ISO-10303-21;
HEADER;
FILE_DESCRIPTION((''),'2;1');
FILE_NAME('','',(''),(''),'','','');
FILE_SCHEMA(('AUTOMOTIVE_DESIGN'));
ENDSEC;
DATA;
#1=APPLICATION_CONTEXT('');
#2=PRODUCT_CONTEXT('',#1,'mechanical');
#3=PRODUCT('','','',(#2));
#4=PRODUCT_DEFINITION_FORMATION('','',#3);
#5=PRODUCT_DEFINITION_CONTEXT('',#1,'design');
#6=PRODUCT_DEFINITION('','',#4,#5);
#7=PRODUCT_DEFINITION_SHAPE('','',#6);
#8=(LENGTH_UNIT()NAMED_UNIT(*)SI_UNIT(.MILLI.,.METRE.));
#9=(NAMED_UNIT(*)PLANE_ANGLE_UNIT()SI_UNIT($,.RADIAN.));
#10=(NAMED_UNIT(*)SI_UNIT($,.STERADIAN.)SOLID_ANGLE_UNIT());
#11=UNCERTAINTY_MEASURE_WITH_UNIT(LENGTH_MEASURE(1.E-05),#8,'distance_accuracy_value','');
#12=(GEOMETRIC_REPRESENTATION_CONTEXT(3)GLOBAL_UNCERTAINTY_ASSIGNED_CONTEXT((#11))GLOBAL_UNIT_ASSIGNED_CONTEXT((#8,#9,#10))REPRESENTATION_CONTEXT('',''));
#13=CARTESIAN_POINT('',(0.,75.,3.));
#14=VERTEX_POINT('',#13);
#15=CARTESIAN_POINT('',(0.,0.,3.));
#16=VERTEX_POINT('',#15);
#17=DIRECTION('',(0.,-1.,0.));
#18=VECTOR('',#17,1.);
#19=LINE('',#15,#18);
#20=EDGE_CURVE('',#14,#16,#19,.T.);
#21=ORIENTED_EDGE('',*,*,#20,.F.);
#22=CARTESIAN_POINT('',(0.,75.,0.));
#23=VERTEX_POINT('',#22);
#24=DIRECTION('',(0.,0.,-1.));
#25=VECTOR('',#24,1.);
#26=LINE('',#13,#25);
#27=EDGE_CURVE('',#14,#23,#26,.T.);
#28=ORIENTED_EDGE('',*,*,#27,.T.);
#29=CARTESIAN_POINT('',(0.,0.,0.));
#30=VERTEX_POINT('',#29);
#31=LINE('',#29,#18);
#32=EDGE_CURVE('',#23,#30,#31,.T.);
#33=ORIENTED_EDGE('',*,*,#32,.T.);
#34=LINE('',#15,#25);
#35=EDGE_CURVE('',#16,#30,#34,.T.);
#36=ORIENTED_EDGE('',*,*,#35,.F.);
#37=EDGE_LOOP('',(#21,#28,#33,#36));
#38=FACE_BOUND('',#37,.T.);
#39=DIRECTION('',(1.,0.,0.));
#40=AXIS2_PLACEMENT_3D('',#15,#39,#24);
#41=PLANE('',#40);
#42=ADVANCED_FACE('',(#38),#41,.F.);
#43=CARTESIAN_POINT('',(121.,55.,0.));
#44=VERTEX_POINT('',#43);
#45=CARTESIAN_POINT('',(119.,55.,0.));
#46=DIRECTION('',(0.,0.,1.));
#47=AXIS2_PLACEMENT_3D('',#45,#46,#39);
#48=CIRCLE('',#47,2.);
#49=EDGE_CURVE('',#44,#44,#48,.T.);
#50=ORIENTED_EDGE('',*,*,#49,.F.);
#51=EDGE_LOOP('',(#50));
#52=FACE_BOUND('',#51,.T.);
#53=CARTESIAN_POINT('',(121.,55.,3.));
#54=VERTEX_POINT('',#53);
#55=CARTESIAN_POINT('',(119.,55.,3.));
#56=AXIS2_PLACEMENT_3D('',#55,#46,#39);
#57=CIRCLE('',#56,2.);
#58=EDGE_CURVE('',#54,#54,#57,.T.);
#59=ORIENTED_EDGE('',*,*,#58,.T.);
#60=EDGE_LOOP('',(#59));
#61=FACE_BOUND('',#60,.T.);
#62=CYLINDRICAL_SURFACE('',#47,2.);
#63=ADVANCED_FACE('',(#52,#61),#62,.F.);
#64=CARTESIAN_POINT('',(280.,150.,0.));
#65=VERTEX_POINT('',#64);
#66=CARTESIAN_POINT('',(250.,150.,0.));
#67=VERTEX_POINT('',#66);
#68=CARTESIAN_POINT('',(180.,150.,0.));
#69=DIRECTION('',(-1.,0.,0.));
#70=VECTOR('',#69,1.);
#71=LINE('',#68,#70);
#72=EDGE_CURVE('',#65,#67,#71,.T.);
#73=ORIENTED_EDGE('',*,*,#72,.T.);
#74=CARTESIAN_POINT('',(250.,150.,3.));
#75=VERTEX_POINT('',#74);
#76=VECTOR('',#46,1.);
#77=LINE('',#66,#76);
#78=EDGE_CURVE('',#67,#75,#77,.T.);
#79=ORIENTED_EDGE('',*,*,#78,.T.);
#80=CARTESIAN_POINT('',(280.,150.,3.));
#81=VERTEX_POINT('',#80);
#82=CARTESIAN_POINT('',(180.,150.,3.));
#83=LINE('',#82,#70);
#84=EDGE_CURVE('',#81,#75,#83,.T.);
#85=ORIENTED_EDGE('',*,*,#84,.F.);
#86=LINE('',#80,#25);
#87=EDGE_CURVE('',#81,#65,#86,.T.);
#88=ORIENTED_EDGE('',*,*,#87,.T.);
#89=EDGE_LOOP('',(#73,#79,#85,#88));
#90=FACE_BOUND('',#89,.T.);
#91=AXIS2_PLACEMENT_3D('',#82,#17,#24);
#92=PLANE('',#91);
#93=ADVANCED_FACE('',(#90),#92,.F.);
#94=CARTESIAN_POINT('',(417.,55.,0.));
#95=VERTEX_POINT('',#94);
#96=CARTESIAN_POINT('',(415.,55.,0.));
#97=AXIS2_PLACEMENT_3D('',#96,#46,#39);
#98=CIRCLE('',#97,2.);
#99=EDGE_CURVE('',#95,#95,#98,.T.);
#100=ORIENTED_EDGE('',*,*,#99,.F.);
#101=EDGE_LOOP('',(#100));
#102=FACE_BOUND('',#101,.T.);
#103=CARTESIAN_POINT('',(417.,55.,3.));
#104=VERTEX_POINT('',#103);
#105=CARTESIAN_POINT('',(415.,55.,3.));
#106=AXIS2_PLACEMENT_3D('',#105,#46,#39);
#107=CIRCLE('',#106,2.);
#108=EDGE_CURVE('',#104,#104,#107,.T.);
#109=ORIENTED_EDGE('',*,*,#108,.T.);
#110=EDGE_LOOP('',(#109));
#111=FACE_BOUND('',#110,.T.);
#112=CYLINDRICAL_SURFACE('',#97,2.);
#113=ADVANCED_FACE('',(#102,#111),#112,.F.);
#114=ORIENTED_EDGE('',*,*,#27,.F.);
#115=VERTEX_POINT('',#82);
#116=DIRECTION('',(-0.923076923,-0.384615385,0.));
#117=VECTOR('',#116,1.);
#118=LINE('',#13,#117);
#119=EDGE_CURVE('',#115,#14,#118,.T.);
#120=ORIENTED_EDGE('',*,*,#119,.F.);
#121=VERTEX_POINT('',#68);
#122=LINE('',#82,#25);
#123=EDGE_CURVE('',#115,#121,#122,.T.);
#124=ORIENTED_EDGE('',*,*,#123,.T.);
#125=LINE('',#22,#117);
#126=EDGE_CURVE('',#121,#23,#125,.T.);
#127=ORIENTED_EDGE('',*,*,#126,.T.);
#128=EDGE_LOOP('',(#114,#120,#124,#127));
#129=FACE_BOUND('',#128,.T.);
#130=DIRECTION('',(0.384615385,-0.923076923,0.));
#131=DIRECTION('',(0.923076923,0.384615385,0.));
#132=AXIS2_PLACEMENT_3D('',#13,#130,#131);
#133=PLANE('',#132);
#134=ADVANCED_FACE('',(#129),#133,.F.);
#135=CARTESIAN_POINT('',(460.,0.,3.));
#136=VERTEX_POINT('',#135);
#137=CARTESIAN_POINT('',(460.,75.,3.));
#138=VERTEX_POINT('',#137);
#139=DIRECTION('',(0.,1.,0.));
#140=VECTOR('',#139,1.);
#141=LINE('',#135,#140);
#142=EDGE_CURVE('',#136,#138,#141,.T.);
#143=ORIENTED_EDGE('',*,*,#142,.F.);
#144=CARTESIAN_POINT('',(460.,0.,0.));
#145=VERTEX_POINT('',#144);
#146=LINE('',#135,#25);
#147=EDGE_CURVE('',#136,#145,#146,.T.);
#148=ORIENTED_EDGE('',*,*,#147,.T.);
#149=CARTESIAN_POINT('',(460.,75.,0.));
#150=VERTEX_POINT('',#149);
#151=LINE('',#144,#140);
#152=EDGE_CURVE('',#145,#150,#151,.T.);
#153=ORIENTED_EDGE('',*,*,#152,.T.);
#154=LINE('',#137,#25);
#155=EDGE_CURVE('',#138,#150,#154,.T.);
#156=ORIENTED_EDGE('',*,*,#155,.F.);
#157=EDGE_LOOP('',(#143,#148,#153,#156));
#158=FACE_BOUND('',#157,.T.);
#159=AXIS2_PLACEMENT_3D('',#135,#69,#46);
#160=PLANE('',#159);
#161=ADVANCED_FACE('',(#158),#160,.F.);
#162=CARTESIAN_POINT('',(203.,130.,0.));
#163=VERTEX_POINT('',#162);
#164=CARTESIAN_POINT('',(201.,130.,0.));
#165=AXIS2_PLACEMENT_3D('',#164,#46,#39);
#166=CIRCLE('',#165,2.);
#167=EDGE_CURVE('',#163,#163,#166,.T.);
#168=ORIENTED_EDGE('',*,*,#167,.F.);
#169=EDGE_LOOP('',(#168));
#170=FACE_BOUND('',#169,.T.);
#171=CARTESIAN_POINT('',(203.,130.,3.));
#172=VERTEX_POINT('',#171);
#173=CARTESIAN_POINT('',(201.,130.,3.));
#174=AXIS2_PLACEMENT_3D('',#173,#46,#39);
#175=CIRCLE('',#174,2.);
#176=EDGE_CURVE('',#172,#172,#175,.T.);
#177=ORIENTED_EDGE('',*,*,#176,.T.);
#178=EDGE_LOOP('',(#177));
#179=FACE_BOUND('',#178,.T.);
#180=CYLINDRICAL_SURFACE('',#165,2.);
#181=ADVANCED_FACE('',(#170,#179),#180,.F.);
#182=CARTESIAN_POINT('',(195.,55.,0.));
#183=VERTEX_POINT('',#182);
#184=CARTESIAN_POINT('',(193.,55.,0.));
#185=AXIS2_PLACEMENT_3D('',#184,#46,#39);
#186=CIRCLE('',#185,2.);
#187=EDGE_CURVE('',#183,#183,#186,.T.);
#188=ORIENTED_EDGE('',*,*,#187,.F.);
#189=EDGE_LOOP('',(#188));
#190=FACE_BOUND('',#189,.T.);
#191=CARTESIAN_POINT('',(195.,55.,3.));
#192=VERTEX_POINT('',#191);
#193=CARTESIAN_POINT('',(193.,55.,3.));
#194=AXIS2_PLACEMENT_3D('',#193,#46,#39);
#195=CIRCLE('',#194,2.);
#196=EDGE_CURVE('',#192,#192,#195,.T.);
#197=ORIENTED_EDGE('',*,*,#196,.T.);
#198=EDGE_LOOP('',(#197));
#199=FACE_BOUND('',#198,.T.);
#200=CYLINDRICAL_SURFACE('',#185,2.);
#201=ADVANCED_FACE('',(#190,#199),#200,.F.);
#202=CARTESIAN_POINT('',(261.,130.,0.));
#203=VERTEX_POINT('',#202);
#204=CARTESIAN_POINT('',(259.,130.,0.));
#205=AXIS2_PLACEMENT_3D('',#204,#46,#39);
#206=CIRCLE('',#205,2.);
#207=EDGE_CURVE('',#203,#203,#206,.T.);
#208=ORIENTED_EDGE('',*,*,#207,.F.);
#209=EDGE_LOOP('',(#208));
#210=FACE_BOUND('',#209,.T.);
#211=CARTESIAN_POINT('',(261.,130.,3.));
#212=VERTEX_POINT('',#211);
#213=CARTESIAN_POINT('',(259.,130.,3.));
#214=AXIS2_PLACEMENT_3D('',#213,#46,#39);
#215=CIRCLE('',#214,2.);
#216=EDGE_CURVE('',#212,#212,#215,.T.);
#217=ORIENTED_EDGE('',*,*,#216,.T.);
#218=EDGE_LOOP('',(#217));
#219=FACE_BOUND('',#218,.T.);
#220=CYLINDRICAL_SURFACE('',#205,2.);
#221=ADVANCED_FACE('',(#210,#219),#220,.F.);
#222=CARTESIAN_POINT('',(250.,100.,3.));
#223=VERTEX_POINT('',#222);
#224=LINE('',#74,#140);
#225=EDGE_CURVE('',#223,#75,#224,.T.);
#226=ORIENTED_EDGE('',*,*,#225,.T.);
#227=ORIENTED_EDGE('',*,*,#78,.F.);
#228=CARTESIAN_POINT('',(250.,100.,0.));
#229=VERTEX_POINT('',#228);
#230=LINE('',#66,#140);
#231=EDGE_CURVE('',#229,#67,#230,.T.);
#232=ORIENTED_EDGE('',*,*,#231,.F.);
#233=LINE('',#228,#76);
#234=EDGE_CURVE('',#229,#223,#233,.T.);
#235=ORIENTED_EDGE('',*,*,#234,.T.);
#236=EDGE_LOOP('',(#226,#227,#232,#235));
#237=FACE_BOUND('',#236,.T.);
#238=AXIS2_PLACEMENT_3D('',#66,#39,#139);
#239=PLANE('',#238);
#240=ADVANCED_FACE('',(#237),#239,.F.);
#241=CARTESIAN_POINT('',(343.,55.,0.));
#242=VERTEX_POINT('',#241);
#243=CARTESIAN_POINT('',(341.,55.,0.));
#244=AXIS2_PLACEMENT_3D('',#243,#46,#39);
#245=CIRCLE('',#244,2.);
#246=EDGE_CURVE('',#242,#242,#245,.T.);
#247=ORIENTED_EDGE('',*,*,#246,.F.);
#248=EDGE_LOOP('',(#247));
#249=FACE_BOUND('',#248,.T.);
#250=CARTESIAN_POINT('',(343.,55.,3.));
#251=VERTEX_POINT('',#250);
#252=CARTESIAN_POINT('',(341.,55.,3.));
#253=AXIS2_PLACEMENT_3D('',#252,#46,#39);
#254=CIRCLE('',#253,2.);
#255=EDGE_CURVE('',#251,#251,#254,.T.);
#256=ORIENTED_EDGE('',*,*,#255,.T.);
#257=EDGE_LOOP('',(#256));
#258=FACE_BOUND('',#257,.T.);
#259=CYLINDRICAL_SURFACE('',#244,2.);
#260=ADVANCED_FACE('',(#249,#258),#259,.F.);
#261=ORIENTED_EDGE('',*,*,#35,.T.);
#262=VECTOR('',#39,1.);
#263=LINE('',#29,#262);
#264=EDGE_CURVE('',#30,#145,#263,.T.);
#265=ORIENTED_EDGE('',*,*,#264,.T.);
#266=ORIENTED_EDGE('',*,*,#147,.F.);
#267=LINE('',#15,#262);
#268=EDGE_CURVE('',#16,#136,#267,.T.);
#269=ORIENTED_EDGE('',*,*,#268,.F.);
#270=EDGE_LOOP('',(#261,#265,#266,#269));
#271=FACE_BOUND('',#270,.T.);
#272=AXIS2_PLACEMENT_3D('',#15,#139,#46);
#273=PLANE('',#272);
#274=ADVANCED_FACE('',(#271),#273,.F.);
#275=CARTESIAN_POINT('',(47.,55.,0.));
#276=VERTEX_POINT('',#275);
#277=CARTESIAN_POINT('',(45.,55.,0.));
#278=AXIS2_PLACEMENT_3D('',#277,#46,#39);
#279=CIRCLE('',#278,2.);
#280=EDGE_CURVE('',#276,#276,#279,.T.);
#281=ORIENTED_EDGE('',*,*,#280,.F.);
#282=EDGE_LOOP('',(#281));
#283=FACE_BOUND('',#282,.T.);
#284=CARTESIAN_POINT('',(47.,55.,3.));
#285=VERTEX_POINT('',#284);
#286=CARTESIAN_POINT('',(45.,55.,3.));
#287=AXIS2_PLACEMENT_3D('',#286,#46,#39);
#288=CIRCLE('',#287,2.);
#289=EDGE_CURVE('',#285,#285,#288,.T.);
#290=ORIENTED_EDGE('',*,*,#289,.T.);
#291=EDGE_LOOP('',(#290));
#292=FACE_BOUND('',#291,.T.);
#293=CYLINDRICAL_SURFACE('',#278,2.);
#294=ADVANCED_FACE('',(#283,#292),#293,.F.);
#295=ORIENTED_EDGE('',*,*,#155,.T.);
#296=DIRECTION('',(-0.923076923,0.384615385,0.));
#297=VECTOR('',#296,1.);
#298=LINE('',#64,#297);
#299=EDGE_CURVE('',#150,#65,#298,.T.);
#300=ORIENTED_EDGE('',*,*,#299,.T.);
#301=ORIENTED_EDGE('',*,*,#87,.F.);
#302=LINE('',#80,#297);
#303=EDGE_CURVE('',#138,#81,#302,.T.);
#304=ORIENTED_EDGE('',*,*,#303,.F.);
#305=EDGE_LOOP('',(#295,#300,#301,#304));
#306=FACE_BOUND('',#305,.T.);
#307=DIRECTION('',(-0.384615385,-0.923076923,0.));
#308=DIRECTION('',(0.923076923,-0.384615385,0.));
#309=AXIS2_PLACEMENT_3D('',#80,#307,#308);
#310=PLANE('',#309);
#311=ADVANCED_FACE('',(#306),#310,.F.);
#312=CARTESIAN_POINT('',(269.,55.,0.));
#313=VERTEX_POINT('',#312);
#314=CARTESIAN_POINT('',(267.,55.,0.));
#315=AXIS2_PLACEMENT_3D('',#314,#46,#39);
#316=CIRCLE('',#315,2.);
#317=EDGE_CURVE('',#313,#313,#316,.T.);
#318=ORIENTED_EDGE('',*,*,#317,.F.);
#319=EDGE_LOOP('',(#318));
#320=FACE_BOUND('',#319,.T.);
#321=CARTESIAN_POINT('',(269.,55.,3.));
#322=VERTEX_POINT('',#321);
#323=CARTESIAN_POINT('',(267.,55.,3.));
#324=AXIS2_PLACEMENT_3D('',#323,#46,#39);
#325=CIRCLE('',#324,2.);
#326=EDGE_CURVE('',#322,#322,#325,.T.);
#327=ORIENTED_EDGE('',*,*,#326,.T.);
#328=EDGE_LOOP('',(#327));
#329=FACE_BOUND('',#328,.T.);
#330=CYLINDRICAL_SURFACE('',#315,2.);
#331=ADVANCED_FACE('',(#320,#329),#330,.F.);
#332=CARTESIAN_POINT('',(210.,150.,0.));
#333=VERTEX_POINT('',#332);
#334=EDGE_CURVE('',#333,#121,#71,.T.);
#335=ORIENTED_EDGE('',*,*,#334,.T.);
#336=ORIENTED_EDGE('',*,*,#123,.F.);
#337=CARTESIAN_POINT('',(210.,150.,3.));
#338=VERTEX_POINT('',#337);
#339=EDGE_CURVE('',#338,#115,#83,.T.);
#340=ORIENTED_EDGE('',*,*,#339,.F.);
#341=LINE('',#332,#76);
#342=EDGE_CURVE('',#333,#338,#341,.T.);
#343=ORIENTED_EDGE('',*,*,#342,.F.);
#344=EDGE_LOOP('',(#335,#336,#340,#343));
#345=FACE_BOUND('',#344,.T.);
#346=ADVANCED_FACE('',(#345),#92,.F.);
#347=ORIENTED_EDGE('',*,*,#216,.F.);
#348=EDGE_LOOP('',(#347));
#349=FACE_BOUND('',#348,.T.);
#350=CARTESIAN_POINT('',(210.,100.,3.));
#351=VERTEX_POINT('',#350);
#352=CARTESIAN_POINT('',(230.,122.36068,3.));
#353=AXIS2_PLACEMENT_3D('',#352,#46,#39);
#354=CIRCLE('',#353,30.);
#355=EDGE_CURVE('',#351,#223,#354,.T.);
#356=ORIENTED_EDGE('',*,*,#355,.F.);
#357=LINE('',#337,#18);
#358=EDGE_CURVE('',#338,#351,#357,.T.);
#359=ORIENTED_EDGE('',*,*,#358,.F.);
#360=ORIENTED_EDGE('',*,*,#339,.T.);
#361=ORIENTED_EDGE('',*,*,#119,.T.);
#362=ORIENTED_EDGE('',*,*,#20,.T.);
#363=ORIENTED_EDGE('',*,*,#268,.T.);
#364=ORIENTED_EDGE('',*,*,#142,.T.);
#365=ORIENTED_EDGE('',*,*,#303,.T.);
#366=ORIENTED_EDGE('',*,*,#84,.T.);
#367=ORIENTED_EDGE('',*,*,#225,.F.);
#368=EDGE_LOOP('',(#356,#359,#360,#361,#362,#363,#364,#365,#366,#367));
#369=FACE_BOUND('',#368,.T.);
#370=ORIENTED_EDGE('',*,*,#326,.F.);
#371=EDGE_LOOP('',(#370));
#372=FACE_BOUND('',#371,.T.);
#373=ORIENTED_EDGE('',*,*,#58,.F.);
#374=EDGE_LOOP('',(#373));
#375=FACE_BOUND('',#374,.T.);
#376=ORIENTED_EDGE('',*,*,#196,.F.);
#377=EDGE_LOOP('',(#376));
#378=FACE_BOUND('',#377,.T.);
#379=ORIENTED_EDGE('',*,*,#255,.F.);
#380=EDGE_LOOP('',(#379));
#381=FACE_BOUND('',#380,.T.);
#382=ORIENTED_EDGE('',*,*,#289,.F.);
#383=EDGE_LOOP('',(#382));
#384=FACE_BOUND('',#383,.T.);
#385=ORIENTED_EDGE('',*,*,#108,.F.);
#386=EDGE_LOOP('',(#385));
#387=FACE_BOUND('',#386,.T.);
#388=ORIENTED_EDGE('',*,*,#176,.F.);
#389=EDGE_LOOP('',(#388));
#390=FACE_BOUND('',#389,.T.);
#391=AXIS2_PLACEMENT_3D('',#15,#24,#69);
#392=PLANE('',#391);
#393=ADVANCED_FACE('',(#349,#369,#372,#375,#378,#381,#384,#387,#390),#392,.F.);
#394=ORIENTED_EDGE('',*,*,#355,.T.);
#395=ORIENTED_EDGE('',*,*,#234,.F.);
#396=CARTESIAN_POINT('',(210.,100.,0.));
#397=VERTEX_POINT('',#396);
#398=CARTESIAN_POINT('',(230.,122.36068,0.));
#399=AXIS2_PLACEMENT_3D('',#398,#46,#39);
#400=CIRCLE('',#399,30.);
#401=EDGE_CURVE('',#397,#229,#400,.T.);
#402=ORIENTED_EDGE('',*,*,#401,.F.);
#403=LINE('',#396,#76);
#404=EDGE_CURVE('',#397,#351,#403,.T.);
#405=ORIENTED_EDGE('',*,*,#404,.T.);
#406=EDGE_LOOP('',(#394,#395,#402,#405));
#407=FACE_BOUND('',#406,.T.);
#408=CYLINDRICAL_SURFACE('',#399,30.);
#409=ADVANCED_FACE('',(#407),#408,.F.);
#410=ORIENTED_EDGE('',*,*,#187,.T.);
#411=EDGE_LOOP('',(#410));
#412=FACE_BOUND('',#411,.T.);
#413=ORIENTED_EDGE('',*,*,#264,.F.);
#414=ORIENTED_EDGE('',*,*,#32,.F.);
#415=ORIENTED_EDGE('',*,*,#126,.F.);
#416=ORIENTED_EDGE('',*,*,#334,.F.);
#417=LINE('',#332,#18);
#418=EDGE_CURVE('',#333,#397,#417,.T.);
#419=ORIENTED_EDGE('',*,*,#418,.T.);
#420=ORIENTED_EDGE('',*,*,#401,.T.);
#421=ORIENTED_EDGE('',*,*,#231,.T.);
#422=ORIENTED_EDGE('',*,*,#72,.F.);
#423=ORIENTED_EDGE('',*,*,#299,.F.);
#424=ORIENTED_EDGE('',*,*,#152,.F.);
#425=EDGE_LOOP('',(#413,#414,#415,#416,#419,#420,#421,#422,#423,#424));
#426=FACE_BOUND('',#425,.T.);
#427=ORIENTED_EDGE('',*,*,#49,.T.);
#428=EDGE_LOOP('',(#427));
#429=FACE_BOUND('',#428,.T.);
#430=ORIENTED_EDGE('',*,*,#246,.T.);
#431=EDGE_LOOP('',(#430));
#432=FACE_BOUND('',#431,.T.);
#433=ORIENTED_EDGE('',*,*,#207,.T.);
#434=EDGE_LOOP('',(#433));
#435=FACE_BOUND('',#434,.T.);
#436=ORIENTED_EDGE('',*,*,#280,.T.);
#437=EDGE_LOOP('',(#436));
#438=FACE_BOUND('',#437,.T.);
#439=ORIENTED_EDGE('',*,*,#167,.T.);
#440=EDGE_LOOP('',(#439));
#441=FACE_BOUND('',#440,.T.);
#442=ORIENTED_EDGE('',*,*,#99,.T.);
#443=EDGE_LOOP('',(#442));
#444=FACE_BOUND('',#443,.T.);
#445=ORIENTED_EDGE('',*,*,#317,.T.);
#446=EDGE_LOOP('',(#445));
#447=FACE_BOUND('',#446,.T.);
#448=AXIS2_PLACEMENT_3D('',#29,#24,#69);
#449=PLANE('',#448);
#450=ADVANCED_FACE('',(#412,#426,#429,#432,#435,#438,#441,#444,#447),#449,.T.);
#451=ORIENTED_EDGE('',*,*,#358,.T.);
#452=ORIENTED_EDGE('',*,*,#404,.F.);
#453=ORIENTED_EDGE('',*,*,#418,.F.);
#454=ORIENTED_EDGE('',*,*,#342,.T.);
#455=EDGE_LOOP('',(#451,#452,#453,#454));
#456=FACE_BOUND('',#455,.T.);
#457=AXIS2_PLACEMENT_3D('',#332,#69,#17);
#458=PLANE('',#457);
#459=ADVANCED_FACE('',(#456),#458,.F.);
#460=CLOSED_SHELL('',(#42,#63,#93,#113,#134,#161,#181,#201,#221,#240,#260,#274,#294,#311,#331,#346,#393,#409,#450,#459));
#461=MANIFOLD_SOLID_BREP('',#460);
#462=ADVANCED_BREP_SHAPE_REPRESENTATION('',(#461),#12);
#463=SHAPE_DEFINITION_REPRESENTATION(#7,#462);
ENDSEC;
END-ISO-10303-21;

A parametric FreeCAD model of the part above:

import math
import FreeCAD as App
import Part
import Sketcher

V = App.Vector

doc = App.newDocument("Part")
body = doc.addObject("PartDesign::Body", "Body")

# Sketch on XY plane
sketch1 = body.newObject("Sketcher::SketchObject", "Sketch")
sketch1.AttachmentSupport = (doc.getObject("XY_Plane"), [""])
sketch1.MapMode = "FlatFace"
sketch1.addGeometry([
    Part.LineSegment(V(0, 0, 0), V(460, 0, 0)),  # 0
    Part.LineSegment(V(460, 0, 0), V(460, 75, 0)),  # 1
    Part.LineSegment(V(460, 75, 0), V(280, 150, 0)),  # 2
    Part.LineSegment(V(280, 150, 0), V(180, 150, 0)),  # 3
    Part.LineSegment(V(180, 150, 0), V(0, 75, 0)),  # 4
    Part.LineSegment(V(0, 75, 0), V(0, 0, 0)),  # 5
], False)
sketch1.addConstraint([
    Sketcher.Constraint("Coincident", 0, 2, 1, 1),
    Sketcher.Constraint("Coincident", 1, 2, 2, 1),
    Sketcher.Constraint("Coincident", 2, 2, 3, 1),
    Sketcher.Constraint("Coincident", 3, 2, 4, 1),
    Sketcher.Constraint("Coincident", 4, 2, 5, 1),
    Sketcher.Constraint("Coincident", 5, 2, 0, 1),
    Sketcher.Constraint("Horizontal", 0),
    Sketcher.Constraint("Vertical", 1),
    Sketcher.Constraint("Horizontal", 3),
    Sketcher.Constraint("Vertical", 5),
    Sketcher.Constraint("Coincident", 5, 2, -1, 1),
    Sketcher.Constraint("Horizontal", 1, 2, 4, 2),
    Sketcher.Constraint("Equal", 2, 4),
    Sketcher.Constraint("DistanceX", 0, 1, 0, 2, 460.0),
    Sketcher.Constraint("DistanceX", 3, 2, 3, 1, 100.0),
    Sketcher.Constraint("DistanceY", 1, 1, 1, 2, 75.0),
    Sketcher.Constraint("Distance", 2, 195.0),
])
pad1 = body.newObject("PartDesign::Pad", "Pad")
pad1.Profile = sketch1
pad1.Length = 3

# Sketch on XY plane
sketch2 = body.newObject("Sketcher::SketchObject", "Sketch001")
sketch2.AttachmentSupport = (doc.getObject("XY_Plane"), [""])
sketch2.MapMode = "FlatFace"
sketch2.AttachmentOffset = App.Placement(V(0, 0, 3), App.Rotation())
sketch2.addGeometry([
    Part.Circle(V(45, 55, 0), V(0, 0, 1), 2),  # 0
    Part.Circle(V(119, 55, 0), V(0, 0, 1), 2),  # 1
    Part.Circle(V(193, 55, 0), V(0, 0, 1), 2),  # 2
    Part.Circle(V(267, 55, 0), V(0, 0, 1), 2),  # 3
    Part.Circle(V(341, 55, 0), V(0, 0, 1), 2),  # 4
    Part.Circle(V(415, 55, 0), V(0, 0, 1), 2),  # 5
    Part.Circle(V(201, 130, 0), V(0, 0, 1), 2),  # 6
    Part.Circle(V(259, 130, 0), V(0, 0, 1), 2),  # 7
    Part.LineSegment(V(250, 150, 0), V(210, 150, 0)),  # 8
    Part.LineSegment(V(210, 150, 0), V(210, 100, 0)),  # 9
    Part.ArcOfCircle(Part.Circle(V(230, 122.4, 0), V(0, 0, 1), 30), math.radians(-132), math.radians(-48)),  # 10
    Part.LineSegment(V(250, 100, 0), V(250, 150, 0)),  # 11
], False)
sketch2.addConstraint([
    Sketcher.Constraint("Coincident", 8, 2, 9, 1),
    Sketcher.Constraint("Coincident", 9, 2, 10, 1),
    Sketcher.Constraint("Coincident", 10, 2, 11, 1),
    Sketcher.Constraint("Coincident", 11, 2, 8, 1),
    Sketcher.Constraint("Horizontal", 8),
    Sketcher.Constraint("Vertical", 9),
    Sketcher.Constraint("Vertical", 11),
    Sketcher.Constraint("Equal", 0, 1),
    Sketcher.Constraint("Equal", 1, 2),
    Sketcher.Constraint("Equal", 2, 3),
    Sketcher.Constraint("Equal", 3, 4),
    Sketcher.Constraint("Equal", 4, 5),
    Sketcher.Constraint("Equal", 5, 6),
    Sketcher.Constraint("Equal", 6, 7),
    Sketcher.Constraint("Horizontal", 0, 3, 1, 3),
    Sketcher.Constraint("Horizontal", 1, 3, 2, 3),
    Sketcher.Constraint("Horizontal", 2, 3, 3, 3),
    Sketcher.Constraint("Horizontal", 3, 3, 4, 3),
    Sketcher.Constraint("Horizontal", 4, 3, 5, 3),
    Sketcher.Constraint("Horizontal", 6, 3, 7, 3),
    Sketcher.Constraint("Horizontal", 9, 2, 10, 2),
    Sketcher.Constraint("Diameter", 0, 4.0),
    Sketcher.Constraint("Radius", 10, 30.0),
    Sketcher.Constraint("DistanceX", 8, 2, 8, 1, 40.0),
    Sketcher.Constraint("DistanceY", 9, 2, 9, 1, 50.0),
    Sketcher.Constraint("DistanceX", -1, 1, 0, 3, 45.0),
    Sketcher.Constraint("DistanceY", -1, 1, 0, 3, 55.0),
    Sketcher.Constraint("DistanceX", -1, 1, 1, 3, 119.0),
    Sketcher.Constraint("DistanceX", -1, 1, 2, 3, 193.0),
    Sketcher.Constraint("DistanceX", -1, 1, 3, 3, 267.0),
    Sketcher.Constraint("DistanceX", -1, 1, 4, 3, 341.0),
    Sketcher.Constraint("DistanceX", -1, 1, 5, 3, 415.0),
    Sketcher.Constraint("DistanceX", -1, 1, 6, 3, 201.0),
    Sketcher.Constraint("DistanceY", -1, 1, 6, 3, 130.0),
    Sketcher.Constraint("DistanceX", -1, 1, 7, 3, 259.0),
    Sketcher.Constraint("DistanceX", -1, 1, 10, 3, 230.0),
    Sketcher.Constraint("DistanceY", -1, 1, 8, 2, 150.0),
])
pocket1 = body.newObject("PartDesign::Pocket", "Pocket")
pocket1.Profile = sketch2
pocket1.Length = 3

doc.recompute()
